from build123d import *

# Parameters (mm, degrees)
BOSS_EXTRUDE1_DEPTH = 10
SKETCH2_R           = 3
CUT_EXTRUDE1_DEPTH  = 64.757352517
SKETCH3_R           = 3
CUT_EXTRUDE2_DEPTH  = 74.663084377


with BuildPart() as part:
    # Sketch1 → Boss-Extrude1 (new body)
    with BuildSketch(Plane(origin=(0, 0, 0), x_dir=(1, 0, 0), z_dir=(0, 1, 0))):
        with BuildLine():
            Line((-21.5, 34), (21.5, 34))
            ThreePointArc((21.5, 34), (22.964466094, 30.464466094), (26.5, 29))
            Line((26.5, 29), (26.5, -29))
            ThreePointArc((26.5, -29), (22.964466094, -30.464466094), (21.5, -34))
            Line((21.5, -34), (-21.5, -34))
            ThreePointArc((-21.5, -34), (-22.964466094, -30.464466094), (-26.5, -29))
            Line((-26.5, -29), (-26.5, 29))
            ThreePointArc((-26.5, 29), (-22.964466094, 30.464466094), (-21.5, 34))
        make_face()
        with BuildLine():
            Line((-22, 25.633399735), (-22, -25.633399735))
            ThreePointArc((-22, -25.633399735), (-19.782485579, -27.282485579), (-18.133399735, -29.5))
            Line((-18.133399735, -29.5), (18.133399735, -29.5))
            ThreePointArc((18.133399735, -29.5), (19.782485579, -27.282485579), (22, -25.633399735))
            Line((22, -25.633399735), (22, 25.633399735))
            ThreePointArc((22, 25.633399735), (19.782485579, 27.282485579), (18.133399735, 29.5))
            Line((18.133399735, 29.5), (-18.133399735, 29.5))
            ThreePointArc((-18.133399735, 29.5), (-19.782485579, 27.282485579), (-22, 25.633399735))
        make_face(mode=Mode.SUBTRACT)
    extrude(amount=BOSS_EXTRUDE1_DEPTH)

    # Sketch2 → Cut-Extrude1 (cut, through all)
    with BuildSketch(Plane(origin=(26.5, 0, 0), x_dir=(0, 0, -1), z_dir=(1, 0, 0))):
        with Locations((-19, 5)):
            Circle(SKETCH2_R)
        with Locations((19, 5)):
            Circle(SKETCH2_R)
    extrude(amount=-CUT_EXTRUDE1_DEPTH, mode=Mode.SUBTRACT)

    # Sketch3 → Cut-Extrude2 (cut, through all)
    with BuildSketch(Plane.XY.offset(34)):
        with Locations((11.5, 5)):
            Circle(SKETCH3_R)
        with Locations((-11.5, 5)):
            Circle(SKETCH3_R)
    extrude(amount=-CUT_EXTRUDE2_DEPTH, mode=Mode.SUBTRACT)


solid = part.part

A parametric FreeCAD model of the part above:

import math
import FreeCAD as App
import Part
import Sketcher
Q = App.Units.Quantity

doc = App.newDocument("Part")
params = doc.addObject("Spreadsheet::Sheet", "Params")
for row, (alias, value) in enumerate([
    ("sketch1_radius", "5 mm"),
    ("sketch1_radius2", "9.5 mm"),
    ("sketch1_width", "43 mm"),
    ("sketch1_height", "58 mm"),
    ("pad1_length", "10 mm"),
    ("sketch2_diameter", "6 mm"),
    ("sketch3_diameter", "6 mm"),
], start=1):
    params.set(f"A{row}", alias)
    params.set(f"B{row}", "=" + value)
    params.setAlias(f"B{row}", alias)

body = doc.addObject("PartDesign::Body", "Body")

sketch1 = doc.addObject("Sketcher::SketchObject", "Sketch")
body.addObject(sketch1)
sketch1.AttachmentSupport = (doc.XZ_Plane, [""])
sketch1.MapMode = "FlatFace"
sketch1.addGeometry([
    Part.LineSegment(App.Vector(22, -34, 0), App.Vector(-22, -34, 0)),
    Part.ArcOfCircle(Part.Circle(App.Vector(-26, -34, 0), App.Vector(0, 0, 1), 5), math.radians(0), math.radians(90)),
    Part.LineSegment(App.Vector(-26, -29, 0), App.Vector(-26, 29, 0)),
    Part.ArcOfCircle(Part.Circle(App.Vector(-26, 34, 0), App.Vector(0, 0, 1), 5), math.radians(-90), math.radians(0)),
    Part.LineSegment(App.Vector(-22, 34, 0), App.Vector(22, 34, 0)),
    Part.ArcOfCircle(Part.Circle(App.Vector(26, 34, 0), App.Vector(0, 0, 1), 5), math.radians(180), math.radians(270)),
    Part.LineSegment(App.Vector(26, 29, 0), App.Vector(26, -29, 0)),
    Part.ArcOfCircle(Part.Circle(App.Vector(26, -34, 0), App.Vector(0, 0, 1), 5), math.radians(90), math.radians(180)),
    Part.ArcOfCircle(Part.Circle(App.Vector(-27, -34, 0), App.Vector(0, 0, 1), 10), math.radians(28), math.radians(62)),
    Part.LineSegment(App.Vector(-18, -30, 0), App.Vector(18, -30, 0)),
    Part.ArcOfCircle(Part.Circle(App.Vector(27, -34, 0), App.Vector(0, 0, 1), 10), math.radians(118), math.radians(152)),
    Part.LineSegment(App.Vector(22, -26, 0), App.Vector(22, 26, 0)),
    Part.ArcOfCircle(Part.Circle(App.Vector(27, 34, 0), App.Vector(0, 0, 1), 10), math.radians(-152), math.radians(-118)),
    Part.LineSegment(App.Vector(18, 30, 0), App.Vector(-18, 30, 0)),
    Part.ArcOfCircle(Part.Circle(App.Vector(-27, 34, 0), App.Vector(0, 0, 1), 10), math.radians(-62), math.radians(-28)),
    Part.LineSegment(App.Vector(-22, 26, 0), App.Vector(-22, -26, 0)),
], False)
sketch1.addConstraint([
    Sketcher.Constraint("Coincident", 0, 2, 1, 1),
    Sketcher.Constraint("Coincident", 1, 2, 2, 1),
    Sketcher.Constraint("Coincident", 2, 2, 3, 1),
    Sketcher.Constraint("Coincident", 3, 2, 4, 1),
    Sketcher.Constraint("Coincident", 4, 2, 5, 1),
    Sketcher.Constraint("Coincident", 5, 2, 6, 1),
    Sketcher.Constraint("Coincident", 6, 2, 7, 1),
    Sketcher.Constraint("Coincident", 7, 2, 0, 1),
    Sketcher.Constraint("Coincident", 8, 1, 9, 1),
    Sketcher.Constraint("Coincident", 9, 2, 10, 2),
    Sketcher.Constraint("Coincident", 10, 1, 11, 1),
    Sketcher.Constraint("Coincident", 11, 2, 12, 2),
    Sketcher.Constraint("Coincident", 12, 1, 13, 1),
    Sketcher.Constraint("Coincident", 13, 2, 14, 2),
    Sketcher.Constraint("Coincident", 14, 1, 15, 1),
    Sketcher.Constraint("Coincident", 15, 2, 8, 2),
    Sketcher.Constraint("Horizontal", 0),
    Sketcher.Constraint("Vertical", 2),
    Sketcher.Constraint("Horizontal", 4),
    Sketcher.Constraint("Vertical", 6),
    Sketcher.Constraint("Horizontal", 9),
    Sketcher.Constraint("Vertical", 11),
    Sketcher.Constraint("Horizontal", 13),
    Sketcher.Constraint("Vertical", 15),
    Sketcher.Constraint("Coincident", 8, 3, 1, 3),
    Sketcher.Constraint("Coincident", 10, 3, 7, 3),
    Sketcher.Constraint("Coincident", 12, 3, 5, 3),
    Sketcher.Constraint("Coincident", 14, 3, 3, 3),
    Sketcher.Constraint("Equal", 1, 3),
    Sketcher.Constraint("Equal", 3, 5),
    Sketcher.Constraint("Equal", 5, 7),
    Sketcher.Constraint("Equal", 8, 10),
    Sketcher.Constraint("Equal", 10, 12),
    Sketcher.Constraint("Equal", 12, 14),
    Sketcher.Constraint("Symmetric", 1, 3, 5, 3, -1, 1),
    Sketcher.Constraint("Symmetric", 3, 3, 7, 3, -1, 1),
    Sketcher.Constraint("Symmetric", 3, 3, 5, 3, -2),
    Sketcher.Constraint("Horizontal", 10, 3, 0, 2),
    Sketcher.Constraint("Horizontal", 14, 3, 3, 2),
    Sketcher.Constraint("Horizontal", 11, 2, 14, 1),
    Sketcher.Constraint("Vertical", 14, 3, 1, 2),
    Sketcher.Constraint("Vertical", 12, 3, 5, 2),
    Sketcher.Constraint("Vertical", 9, 2, 12, 1),
    Sketcher.Constraint("Radius", 1, Q("5 mm")),
    Sketcher.Constraint("Radius", 8, Q("9.5 mm")),
    Sketcher.Constraint("DistanceX", 0, 2, 0, 1, Q("43 mm")),
    Sketcher.Constraint("DistanceY", 2, 1, 2, 2, Q("58 mm")),
    Sketcher.Constraint("DistanceX", -1, 1, 10, 1, Q("22 mm")),
    Sketcher.Constraint("DistanceY", 8, 1, -1, 1, Q("29.5 mm")),
])
sketch1.setExpression("Constraints[43]", "Params.sketch1_radius")
sketch1.setExpression("Constraints[44]", "Params.sketch1_radius2")
sketch1.setExpression("Constraints[45]", "Params.sketch1_width")
sketch1.setExpression("Constraints[46]", "Params.sketch1_height")
pad1 = doc.addObject("PartDesign::Pad", "Pad")
body.addObject(pad1)
pad1.Profile = sketch1
pad1.setExpression("Length", "Params.pad1_length")
pad1.Reversed = True

sketch2 = doc.addObject("Sketcher::SketchObject", "Sketch001")
body.addObject(sketch2)
sketch2.AttachmentSupport = (doc.YZ_Plane, [""])
sketch2.MapMode = "FlatFace"
sketch2.AttachmentOffset = App.Placement(App.Vector(0, 0, 26.5), App.Rotation())
sketch2.addGeometry([
    Part.Circle(App.Vector(5, 19, 0), App.Vector(0, 0, 1), 3),
    Part.Circle(App.Vector(5, -19, 0), App.Vector(0, 0, 1), 3),
], False)
sketch2.addConstraint([
    Sketcher.Constraint("Equal", 0, 1),
    Sketcher.Constraint("Symmetric", 0, 3, 1, 3, -1),
    Sketcher.Constraint("Diameter", 0, Q("6 mm")),
    Sketcher.Constraint("DistanceX", -1, 1, 0, 3, Q("5 mm")),
    Sketcher.Constraint("DistanceY", -1, 1, 0, 3, Q("19 mm")),
])
sketch2.setExpression("Constraints[2]", "Params.sketch2_diameter")
pocket1 = doc.addObject("PartDesign::Pocket", "Pocket")
body.addObject(pocket1)
pocket1.Profile = sketch2
pocket1.Type = "ThroughAll"

sketch3 = doc.addObject("Sketcher::SketchObject", "Sketch002")
body.addObject(sketch3)
sketch3.AttachmentSupport = (doc.XY_Plane, [""])
sketch3.MapMode = "FlatFace"
sketch3.AttachmentOffset = App.Placement(App.Vector(0, 0, 34), App.Rotation())
sketch3.addGeometry([
    Part.Circle(App.Vector(11.5, 5, 0), App.Vector(0, 0, 1), 3),
    Part.Circle(App.Vector(-11.5, 5, 0), App.Vector(0, 0, 1), 3),
], False)
sketch3.addConstraint([
    Sketcher.Constraint("Equal", 0, 1),
    Sketcher.Constraint("Symmetric", 0, 3, 1, 3, -2),
    Sketcher.Constraint("Diameter", 0, Q("6 mm")),
    Sketcher.Constraint("DistanceY", -1, 1, 0, 3, Q("5 mm")),
    Sketcher.Constraint("DistanceX", 1, 3, 0, 3, Q("23 mm")),
])
sketch3.setExpression("Constraints[2]", "Params.sketch3_diameter")
pocket2 = doc.addObject("PartDesign::Pocket", "Pocket001")
body.addObject(pocket2)
pocket2.Profile = sketch3
pocket2.Type = "ThroughAll"

doc.recompute()
